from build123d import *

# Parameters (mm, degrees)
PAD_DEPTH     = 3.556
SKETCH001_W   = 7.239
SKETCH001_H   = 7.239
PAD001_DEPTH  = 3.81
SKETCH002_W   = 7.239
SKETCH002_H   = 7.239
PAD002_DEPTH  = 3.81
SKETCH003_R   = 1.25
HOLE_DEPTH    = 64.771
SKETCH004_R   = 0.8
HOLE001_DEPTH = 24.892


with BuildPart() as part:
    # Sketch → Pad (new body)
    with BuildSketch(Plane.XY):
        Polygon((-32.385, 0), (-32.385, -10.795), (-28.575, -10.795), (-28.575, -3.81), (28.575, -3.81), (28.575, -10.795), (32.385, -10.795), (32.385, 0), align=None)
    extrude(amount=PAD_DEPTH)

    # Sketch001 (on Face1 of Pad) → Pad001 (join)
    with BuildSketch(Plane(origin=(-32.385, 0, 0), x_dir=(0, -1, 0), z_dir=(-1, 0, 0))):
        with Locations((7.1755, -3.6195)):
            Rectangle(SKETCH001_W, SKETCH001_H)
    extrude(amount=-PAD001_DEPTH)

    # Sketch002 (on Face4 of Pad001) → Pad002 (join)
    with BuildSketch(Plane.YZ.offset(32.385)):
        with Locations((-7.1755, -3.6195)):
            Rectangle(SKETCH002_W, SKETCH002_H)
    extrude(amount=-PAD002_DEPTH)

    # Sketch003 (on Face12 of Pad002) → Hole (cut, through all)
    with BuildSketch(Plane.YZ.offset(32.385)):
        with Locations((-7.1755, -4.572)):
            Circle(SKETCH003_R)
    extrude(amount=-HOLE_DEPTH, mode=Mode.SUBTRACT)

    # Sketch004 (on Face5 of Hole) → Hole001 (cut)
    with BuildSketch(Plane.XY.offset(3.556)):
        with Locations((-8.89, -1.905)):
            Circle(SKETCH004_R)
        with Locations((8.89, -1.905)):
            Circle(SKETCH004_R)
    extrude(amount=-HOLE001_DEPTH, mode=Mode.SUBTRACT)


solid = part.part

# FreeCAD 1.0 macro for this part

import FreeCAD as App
import Part
import Sketcher
Q = App.Units.Quantity


def add_polygon(sketch, points):
    """Adds a closed chain of lines whose ends are joined by coincident constraints."""
    first, n = sketch.GeometryCount, len(points)
    for a, b in zip(points, points[1:] + points[:1]):
        sketch.addGeometry(Part.LineSegment(App.Vector(*a, 0), App.Vector(*b, 0)), False)
    for i in range(n):
        sketch.addConstraint(Sketcher.Constraint("Coincident", first + i, 2, first + (i + 1) % n, 1))

doc = App.newDocument("Part")
body = doc.addObject("PartDesign::Body", "Body")

sketch1 = doc.addObject("Sketcher::SketchObject", "Sketch")
body.addObject(sketch1)
sketch1.AttachmentSupport = (doc.XY_Plane, [""])
sketch1.MapMode = "FlatFace"
add_polygon(sketch1, [(-32.385, 0), (-32.385, -10.795), (-28.575, -10.795), (-28.575, -3.81), (28.575, -3.81), (28.575, -10.795), (32.385, -10.795), (32.385, 0)])
sketch1.addConstraint([
    Sketcher.Constraint("Vertical", 0),
    Sketcher.Constraint("Horizontal", 1),
    Sketcher.Constraint("Vertical", 2),
    Sketcher.Constraint("Horizontal", 3),
    Sketcher.Constraint("Vertical", 4),
    Sketcher.Constraint("Horizontal", 5),
    Sketcher.Constraint("Vertical", 6),
    Sketcher.Constraint("Horizontal", 7),
    Sketcher.Constraint("Symmetric", 6, 2, 7, 2, -1, 1),
    Sketcher.Constraint("Symmetric", 1, 2, 4, 2, -2),
    Sketcher.Constraint("DistanceX", 1, 1, 1, 2, Q("0.15 in")),
    Sketcher.Constraint("DistanceX", 3, 1, 3, 2, Q("2.25 in")),
    Sketcher.Constraint("DistanceY", 0, 2, 0, 1, Q("0.425 in")),
    Sketcher.Constraint("DistanceY", 2, 1, 2, 2, Q("0.275 in")),
])
pad1 = doc.addObject("PartDesign::Pad", "Pad")
body.addObject(pad1)
pad1.Profile = sketch1
pad1.Length = Q("0.14 in")

sketch2 = doc.addObject("Sketcher::SketchObject", "Sketch001")
body.addObject(sketch2)
sketch2.AttachmentSupport = (doc.YZ_Plane, [""])
sketch2.MapMode = "FlatFace"
sketch2.AttachmentOffset = App.Placement(App.Vector(0, 0, -1.275 * 25.4), App.Rotation())
add_polygon(sketch2, [(-3.556, 0), (-3.556, -7.239), (-10.795, -7.239), (-10.795, 0)])
sketch2.addConstraint([
    Sketcher.Constraint("Vertical", 0),
    Sketcher.Constraint("Horizontal", 1),
    Sketcher.Constraint("Vertical", 2),
    Sketcher.Constraint("Horizontal", 3),
    Sketcher.Constraint("PointOnObject", 2, 2, -1),
    Sketcher.Constraint("Equal", 3, 0),
    Sketcher.Constraint("DistanceX", 1, 2, 1, 1, Q("0.285 in")),
    Sketcher.Constraint("DistanceX", 0, 2, -1, 1, Q("0.14 in")),
])
pad2 = doc.addObject("PartDesign::Pad", "Pad001")
body.addObject(pad2)
pad2.Profile = sketch2
pad2.Length = Q("0.15 in")

sketch3 = doc.addObject("Sketcher::SketchObject", "Sketch002")
body.addObject(sketch3)
sketch3.AttachmentSupport = (doc.YZ_Plane, [""])
sketch3.MapMode = "FlatFace"
sketch3.AttachmentOffset = App.Placement(App.Vector(0, 0, 1.275 * 25.4), App.Rotation())
add_polygon(sketch3, [(-10.795, 0), (-10.795, -7.239), (-3.556, -7.239), (-3.556, 0)])
sketch3.addConstraint([
    Sketcher.Constraint("Vertical", 0),
    Sketcher.Constraint("Horizontal", 1),
    Sketcher.Constraint("Vertical", 2),
    Sketcher.Constraint("Horizontal", 3),
    Sketcher.Constraint("PointOnObject", 2, 2, -1),
    Sketcher.Constraint("Equal", 3, 0),
    Sketcher.Constraint("DistanceX", 1, 1, 1, 2, Q("0.285 in")),
    Sketcher.Constraint("DistanceX", 1, 2, -1, 1, Q("0.14 in")),
])
pad3 = doc.addObject("PartDesign::Pad", "Pad002")
body.addObject(pad3)
pad3.Profile = sketch3
pad3.Length = Q("0.15 in")
pad3.Reversed = True

sketch4 = doc.addObject("Sketcher::SketchObject", "Sketch003")
body.addObject(sketch4)
sketch4.AttachmentSupport = (doc.YZ_Plane, [""])
sketch4.MapMode = "FlatFace"
sketch4.AttachmentOffset = App.Placement(App.Vector(0, 0, 1.275 * 25.4), App.Rotation())
sketch4.addGeometry(Part.Circle(App.Vector(-7.1755, -4.572, 0), App.Vector(0, 0, 1), 1.25), False)
sketch4.addConstraint([
    Sketcher.Constraint("Diameter", 0, Q("2.5 mm")),
    Sketcher.Constraint("DistanceY", 0, 3, -1, 1, Q("0.18 in")),
    Sketcher.Constraint("DistanceX", 0, 3, -1, 1, Q("0.2825 in")),
])
pocket1 = doc.addObject("PartDesign::Pocket", "Pocket")
body.addObject(pocket1)
pocket1.Profile = sketch4
pocket1.Type = "ThroughAll"

sketch5 = doc.addObject("Sketcher::SketchObject", "Sketch004")
body.addObject(sketch5)
sketch5.AttachmentSupport = (doc.XY_Plane, [""])
sketch5.MapMode = "FlatFace"
sketch5.AttachmentOffset = App.Placement(App.Vector(0, 0, 0.14 * 25.4), App.Rotation())
sketch5.addGeometry([
    Part.Circle(App.Vector(-8.89, -1.905, 0), App.Vector(0, 0, 1), 0.8),
    Part.Circle(App.Vector(8.89, -1.905, 0), App.Vector(0, 0, 1), 0.8),
], False)
sketch5.addConstraint([
    Sketcher.Constraint("Equal", 0, 1),
    Sketcher.Constraint("Symmetric", 0, 3, 1, 3, -2),
    Sketcher.Constraint("DistanceX", 0, 3, 1, 3, Q("0.7 in")),
    Sketcher.Constraint("Diameter", 0, Q("1.6 mm")),
    Sketcher.Constraint("DistanceY", 0, 3, -1, 1, Q("0.075 in")),
])
pocket2 = doc.addObject("PartDesign::Pocket", "Pocket001")
body.addObject(pocket2)
pocket2.Profile = sketch5
pocket2.Length = Q("0.98 in")

doc.recompute()
